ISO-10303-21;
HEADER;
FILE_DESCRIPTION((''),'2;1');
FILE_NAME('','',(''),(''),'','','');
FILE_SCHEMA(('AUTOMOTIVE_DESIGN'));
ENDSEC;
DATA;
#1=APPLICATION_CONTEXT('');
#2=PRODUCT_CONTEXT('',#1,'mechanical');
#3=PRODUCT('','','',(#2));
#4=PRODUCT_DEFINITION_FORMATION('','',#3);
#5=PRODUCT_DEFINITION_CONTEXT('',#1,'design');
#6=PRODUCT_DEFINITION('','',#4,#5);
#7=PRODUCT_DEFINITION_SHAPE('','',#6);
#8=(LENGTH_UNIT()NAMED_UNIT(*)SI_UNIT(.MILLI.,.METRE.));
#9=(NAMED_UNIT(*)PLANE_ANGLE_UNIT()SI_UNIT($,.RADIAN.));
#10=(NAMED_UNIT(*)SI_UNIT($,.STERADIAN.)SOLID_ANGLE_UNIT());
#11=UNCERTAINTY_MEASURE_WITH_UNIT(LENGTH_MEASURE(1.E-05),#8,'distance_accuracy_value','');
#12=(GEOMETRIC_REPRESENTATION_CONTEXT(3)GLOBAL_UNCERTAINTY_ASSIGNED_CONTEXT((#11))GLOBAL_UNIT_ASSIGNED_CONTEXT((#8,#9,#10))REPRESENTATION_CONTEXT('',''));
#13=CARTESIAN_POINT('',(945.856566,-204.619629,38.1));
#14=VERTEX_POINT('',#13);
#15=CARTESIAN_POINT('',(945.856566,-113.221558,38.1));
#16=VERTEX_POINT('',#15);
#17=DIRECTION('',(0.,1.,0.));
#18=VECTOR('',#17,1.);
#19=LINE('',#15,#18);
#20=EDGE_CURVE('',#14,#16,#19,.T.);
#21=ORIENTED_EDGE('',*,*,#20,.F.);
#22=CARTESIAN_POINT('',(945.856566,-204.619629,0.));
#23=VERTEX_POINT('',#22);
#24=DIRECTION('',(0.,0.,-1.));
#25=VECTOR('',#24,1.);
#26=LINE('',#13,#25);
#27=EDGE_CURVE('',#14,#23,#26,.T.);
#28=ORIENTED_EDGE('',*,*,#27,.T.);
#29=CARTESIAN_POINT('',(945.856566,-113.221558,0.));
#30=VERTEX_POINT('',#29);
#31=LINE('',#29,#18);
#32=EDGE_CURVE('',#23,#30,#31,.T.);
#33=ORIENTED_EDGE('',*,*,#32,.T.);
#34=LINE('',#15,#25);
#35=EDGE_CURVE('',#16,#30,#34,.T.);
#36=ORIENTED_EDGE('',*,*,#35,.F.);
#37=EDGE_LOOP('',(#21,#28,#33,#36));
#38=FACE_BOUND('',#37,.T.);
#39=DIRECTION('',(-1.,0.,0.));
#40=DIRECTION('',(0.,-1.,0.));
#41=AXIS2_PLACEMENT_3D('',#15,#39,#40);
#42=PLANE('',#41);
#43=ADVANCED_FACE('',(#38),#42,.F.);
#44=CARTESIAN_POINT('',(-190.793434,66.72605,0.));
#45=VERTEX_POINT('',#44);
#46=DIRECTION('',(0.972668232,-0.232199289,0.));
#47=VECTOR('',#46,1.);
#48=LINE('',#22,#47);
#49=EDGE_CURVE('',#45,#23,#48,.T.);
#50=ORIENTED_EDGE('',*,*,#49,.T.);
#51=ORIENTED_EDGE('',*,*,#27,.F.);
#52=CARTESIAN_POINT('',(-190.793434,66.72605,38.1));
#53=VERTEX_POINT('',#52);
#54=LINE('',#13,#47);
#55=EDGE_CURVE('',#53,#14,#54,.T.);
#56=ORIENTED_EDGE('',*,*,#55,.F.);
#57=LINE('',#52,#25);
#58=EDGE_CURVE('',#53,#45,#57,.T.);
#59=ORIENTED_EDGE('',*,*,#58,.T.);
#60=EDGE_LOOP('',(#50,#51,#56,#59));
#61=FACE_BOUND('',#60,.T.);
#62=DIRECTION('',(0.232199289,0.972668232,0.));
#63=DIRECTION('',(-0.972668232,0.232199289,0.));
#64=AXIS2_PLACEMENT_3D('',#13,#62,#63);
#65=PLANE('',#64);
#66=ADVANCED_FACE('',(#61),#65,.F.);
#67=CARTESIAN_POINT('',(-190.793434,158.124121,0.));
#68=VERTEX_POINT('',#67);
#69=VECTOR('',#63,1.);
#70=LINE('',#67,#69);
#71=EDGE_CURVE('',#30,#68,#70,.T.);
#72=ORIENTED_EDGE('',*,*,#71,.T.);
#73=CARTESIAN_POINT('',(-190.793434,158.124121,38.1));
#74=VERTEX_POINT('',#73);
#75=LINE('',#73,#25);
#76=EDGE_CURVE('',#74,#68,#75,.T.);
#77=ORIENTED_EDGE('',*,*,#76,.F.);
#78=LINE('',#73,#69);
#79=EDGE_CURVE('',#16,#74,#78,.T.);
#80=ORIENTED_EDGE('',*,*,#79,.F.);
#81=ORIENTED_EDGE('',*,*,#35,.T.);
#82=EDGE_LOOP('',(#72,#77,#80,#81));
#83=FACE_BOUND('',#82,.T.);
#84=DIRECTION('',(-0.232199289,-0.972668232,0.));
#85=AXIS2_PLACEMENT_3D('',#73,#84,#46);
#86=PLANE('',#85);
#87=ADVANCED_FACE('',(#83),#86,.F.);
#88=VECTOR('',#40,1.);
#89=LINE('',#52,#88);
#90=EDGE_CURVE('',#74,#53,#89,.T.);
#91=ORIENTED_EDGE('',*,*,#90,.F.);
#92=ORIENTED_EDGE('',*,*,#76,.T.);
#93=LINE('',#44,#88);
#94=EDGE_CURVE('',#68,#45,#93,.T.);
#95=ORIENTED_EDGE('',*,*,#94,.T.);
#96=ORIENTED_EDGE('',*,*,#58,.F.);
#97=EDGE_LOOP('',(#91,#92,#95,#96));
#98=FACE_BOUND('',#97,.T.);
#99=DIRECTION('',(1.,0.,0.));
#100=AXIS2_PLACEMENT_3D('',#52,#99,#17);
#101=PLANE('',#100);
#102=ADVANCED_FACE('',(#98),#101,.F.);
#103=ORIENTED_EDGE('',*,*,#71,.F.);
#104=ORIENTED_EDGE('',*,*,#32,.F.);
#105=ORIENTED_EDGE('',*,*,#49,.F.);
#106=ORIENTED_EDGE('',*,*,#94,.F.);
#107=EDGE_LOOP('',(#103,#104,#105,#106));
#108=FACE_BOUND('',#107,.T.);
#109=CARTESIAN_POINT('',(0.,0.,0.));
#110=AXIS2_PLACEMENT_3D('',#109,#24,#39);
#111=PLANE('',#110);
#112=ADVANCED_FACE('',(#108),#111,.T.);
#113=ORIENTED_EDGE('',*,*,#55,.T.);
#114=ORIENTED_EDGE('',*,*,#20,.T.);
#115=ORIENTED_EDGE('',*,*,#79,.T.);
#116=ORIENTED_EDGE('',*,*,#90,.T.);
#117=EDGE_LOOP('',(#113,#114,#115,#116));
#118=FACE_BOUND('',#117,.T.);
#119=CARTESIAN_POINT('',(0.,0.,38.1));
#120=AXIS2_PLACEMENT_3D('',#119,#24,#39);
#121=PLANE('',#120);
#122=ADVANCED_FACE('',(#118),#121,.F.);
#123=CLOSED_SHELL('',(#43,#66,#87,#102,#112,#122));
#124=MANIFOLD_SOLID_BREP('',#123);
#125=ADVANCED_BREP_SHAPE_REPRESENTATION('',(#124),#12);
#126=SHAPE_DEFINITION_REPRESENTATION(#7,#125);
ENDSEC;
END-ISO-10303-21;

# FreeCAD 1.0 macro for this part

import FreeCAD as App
import Part
import Sketcher

V = App.Vector
Q = App.Units.Quantity


def add_polygon(sketch, points):
    """Adds a closed chain of lines whose ends are joined by coincident constraints."""
    first, n = sketch.GeometryCount, len(points)
    for a, b in zip(points, points[1:] + points[:1]):
        sketch.addGeometry(Part.LineSegment(App.Vector(*a, 0), App.Vector(*b, 0)), False)
    for i in range(n):
        sketch.addConstraint(Sketcher.Constraint("Coincident", first + i, 2, first + (i + 1) % n, 1))

doc = App.newDocument("Part")
body = doc.addObject("PartDesign::Body", "Body")

# Sketch on XY plane
sketch1 = doc.addObject("Sketcher::SketchObject", "Sketch")
body.addObject(sketch1)
sketch1.AttachmentSupport = (doc.XY_Plane, [""])
sketch1.MapMode = "FlatFace"
add_polygon(sketch1, [(945.856566, -113.221558), (-190.793434, 158.124121), (-190.793434, 66.72605), (945.856566, -204.619629)])  # lines 0-3
sketch1.addConstraint([
    Sketcher.Constraint("Vertical", 1),
    Sketcher.Constraint("Vertical", 3),
    Sketcher.Constraint("Parallel", 0, 2),
    Sketcher.Constraint("DistanceX", 1, 2, 2, 2, Q("44.75 in")),
    Sketcher.Constraint("DistanceY", 2, 2, 0, 2, Q("14.28125 in")),
    Sketcher.Constraint("DistanceY", 1, 2, 1, 1, Q("91.398071 mm")),
    Sketcher.Constraint("DistanceY", -1, 1, 0, 2, Q("158.124121 mm")),
    Sketcher.Constraint("DistanceX", 0, 2, -1, 1, Q("190.793434 mm")),
])
pad1 = doc.addObject("PartDesign::Pad", "Pad")
body.addObject(pad1)
pad1.Profile = sketch1
pad1.Length = Q("1.5 in")

doc.recompute()
